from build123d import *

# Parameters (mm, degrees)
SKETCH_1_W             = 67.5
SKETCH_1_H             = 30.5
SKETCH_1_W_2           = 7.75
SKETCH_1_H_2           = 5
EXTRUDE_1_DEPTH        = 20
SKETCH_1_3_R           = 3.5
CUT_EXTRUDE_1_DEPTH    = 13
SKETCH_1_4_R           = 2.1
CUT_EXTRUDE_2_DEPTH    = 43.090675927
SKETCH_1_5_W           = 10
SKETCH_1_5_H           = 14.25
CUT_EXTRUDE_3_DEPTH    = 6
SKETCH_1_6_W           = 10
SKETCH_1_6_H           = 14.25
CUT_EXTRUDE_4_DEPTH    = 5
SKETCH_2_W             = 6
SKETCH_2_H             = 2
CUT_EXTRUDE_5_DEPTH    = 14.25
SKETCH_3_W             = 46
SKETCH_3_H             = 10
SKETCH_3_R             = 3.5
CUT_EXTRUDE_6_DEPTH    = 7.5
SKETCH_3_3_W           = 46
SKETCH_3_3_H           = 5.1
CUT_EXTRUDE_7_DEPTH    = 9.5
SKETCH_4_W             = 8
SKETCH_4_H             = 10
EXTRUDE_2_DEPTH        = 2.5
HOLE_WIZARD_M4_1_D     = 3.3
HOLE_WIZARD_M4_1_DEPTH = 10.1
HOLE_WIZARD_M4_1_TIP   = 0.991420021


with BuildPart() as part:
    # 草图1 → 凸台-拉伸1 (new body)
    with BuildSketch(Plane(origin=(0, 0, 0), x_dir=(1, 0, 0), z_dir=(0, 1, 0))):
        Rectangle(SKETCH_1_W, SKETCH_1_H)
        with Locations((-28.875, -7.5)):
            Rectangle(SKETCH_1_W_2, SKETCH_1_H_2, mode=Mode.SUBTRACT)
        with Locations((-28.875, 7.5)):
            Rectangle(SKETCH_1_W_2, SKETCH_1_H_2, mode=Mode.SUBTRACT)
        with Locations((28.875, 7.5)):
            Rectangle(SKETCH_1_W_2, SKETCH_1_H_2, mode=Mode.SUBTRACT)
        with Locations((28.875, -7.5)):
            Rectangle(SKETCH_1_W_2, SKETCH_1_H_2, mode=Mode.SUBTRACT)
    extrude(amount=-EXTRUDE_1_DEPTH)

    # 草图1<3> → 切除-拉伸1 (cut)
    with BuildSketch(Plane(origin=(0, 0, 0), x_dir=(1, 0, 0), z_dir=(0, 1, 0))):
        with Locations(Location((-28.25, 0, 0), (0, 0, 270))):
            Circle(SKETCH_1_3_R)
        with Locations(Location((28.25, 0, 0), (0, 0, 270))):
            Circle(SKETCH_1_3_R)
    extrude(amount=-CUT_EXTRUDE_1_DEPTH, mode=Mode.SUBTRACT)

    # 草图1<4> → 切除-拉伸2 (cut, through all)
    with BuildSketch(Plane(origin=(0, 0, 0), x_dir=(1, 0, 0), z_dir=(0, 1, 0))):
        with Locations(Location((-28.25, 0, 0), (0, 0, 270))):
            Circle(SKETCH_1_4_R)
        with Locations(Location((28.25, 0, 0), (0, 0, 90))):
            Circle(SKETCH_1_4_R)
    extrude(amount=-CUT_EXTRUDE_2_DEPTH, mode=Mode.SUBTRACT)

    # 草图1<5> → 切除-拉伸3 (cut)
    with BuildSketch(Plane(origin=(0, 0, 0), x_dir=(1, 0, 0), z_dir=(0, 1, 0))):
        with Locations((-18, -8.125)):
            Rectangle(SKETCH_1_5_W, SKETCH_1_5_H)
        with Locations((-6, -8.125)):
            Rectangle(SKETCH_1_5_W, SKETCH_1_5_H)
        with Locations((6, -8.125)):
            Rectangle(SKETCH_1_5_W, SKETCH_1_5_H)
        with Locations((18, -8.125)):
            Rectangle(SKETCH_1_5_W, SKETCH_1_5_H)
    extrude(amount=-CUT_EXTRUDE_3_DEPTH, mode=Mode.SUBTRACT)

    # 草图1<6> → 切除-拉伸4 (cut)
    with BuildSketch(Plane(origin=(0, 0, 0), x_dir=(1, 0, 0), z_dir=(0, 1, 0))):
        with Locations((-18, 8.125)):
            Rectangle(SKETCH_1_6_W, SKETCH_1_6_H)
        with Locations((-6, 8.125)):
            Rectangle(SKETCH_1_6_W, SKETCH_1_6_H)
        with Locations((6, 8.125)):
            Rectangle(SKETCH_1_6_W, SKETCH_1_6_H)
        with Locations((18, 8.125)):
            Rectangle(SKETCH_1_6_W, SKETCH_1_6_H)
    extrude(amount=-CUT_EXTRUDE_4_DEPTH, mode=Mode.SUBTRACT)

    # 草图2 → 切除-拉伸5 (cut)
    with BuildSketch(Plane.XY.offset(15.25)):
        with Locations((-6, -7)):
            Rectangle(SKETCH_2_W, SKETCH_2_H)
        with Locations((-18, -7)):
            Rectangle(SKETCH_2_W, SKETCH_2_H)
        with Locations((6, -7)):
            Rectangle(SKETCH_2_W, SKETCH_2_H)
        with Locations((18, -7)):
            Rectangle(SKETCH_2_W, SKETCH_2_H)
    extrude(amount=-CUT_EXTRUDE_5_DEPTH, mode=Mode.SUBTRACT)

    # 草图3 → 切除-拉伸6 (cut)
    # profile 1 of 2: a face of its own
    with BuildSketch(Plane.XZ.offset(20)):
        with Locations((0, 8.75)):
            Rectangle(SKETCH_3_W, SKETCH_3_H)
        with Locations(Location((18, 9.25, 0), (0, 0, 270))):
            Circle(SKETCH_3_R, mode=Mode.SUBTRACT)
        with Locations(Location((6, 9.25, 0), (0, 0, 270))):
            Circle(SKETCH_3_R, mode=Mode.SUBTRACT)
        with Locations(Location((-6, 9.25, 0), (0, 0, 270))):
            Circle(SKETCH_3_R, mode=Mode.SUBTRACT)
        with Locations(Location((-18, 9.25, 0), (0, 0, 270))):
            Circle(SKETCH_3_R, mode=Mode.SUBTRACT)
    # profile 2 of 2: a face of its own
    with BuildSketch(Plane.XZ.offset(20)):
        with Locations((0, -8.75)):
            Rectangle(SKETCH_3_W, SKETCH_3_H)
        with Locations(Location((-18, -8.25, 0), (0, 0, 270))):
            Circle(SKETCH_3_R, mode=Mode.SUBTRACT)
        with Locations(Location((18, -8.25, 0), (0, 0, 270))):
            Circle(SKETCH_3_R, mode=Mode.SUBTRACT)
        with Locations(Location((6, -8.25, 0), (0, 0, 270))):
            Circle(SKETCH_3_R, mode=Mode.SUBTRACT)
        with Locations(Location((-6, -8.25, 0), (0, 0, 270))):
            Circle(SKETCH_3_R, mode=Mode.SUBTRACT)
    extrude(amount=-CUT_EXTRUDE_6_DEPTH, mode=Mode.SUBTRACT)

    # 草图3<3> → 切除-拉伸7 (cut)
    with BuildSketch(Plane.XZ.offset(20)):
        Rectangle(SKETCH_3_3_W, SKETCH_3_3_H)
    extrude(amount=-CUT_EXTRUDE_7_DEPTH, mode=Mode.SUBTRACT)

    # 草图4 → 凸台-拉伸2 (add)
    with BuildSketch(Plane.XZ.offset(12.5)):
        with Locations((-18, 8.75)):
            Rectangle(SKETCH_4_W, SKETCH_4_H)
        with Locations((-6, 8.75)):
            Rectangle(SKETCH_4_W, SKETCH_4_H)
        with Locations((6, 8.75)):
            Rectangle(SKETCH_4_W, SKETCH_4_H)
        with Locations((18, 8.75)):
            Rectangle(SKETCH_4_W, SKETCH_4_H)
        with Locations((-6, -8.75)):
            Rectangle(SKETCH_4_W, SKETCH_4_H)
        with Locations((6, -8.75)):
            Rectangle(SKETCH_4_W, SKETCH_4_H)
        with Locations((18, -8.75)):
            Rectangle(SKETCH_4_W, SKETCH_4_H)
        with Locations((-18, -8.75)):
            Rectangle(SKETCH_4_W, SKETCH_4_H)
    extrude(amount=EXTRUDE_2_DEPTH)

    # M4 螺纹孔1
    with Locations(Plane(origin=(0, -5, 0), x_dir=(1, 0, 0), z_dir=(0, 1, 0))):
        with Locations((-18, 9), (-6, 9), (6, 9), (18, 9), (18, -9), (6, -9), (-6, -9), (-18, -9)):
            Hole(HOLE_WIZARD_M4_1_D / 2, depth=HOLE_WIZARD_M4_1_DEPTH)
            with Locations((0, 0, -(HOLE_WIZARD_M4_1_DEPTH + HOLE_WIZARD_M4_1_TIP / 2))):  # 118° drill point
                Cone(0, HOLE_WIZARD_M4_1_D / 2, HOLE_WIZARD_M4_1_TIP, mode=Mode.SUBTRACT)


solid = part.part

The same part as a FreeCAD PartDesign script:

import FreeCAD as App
import Part
import Sketcher
from FreeCAD import Vector


def add_polygon(sketch, points):
    """Adds a closed chain of lines whose ends are joined by coincident constraints."""
    first, n = sketch.GeometryCount, len(points)
    for a, b in zip(points, points[1:] + points[:1]):
        sketch.addGeometry(Part.LineSegment(App.Vector(*a, 0), App.Vector(*b, 0)), False)
    for i in range(n):
        sketch.addConstraint(Sketcher.Constraint("Coincident", first + i, 2, first + (i + 1) % n, 1))

doc = App.newDocument("Part")
body = doc.addObject("PartDesign::Body", "Body")

# Sketch on XZ plane
sketch1 = body.newObject("Sketcher::SketchObject", "Sketch")
sketch1.AttachmentSupport = (doc.getObject("XZ_Plane"), [""])
sketch1.MapMode = "FlatFace"
add_polygon(sketch1, [(-34, -15), (-34, 15), (34, 15), (34, -15)])  # lines 0-3
add_polygon(sketch1, [(-25, 10), (-33, 10), (-33, 5), (-25, 5)])  # lines 4-7
add_polygon(sketch1, [(33, 10), (25, 10), (25, 5), (33, 5)])  # lines 8-11
add_polygon(sketch1, [(-25, -5), (-33, -5), (-33, -10), (-25, -10)])  # lines 12-15
add_polygon(sketch1, [(33, -5), (25, -5), (25, -10), (33, -10)])  # lines 16-19
sketch1.addConstraint(Sketcher.Constraint("Vertical", 0))
sketch1.addConstraint(Sketcher.Constraint("Horizontal", 1))
sketch1.addConstraint(Sketcher.Constraint("Vertical", 2))
sketch1.addConstraint(Sketcher.Constraint("Horizontal", 3))
sketch1.addConstraint(Sketcher.Constraint("Horizontal", 4))
sketch1.addConstraint(Sketcher.Constraint("Vertical", 5))
sketch1.addConstraint(Sketcher.Constraint("Horizontal", 6))
sketch1.addConstraint(Sketcher.Constraint("Vertical", 7))
sketch1.addConstraint(Sketcher.Constraint("Horizontal", 8))
sketch1.addConstraint(Sketcher.Constraint("Vertical", 9))
sketch1.addConstraint(Sketcher.Constraint("Horizontal", 10))
sketch1.addConstraint(Sketcher.Constraint("Vertical", 11))
sketch1.addConstraint(Sketcher.Constraint("Horizontal", 12))
sketch1.addConstraint(Sketcher.Constraint("Vertical", 13))
sketch1.addConstraint(Sketcher.Constraint("Horizontal", 14))
sketch1.addConstraint(Sketcher.Constraint("Vertical", 15))
sketch1.addConstraint(Sketcher.Constraint("Horizontal", 16))
sketch1.addConstraint(Sketcher.Constraint("Vertical", 17))
sketch1.addConstraint(Sketcher.Constraint("Horizontal", 18))
sketch1.addConstraint(Sketcher.Constraint("Vertical", 19))
sketch1.addConstraint(Sketcher.Constraint("Symmetric", 0, 2, 2, 2, -1, 1))
sketch1.addConstraint(Sketcher.Constraint("Symmetric", 10, 2, 12, 2, -1, 1))
sketch1.addConstraint(Sketcher.Constraint("Symmetric", 8, 2, 14, 2, -1, 1))
sketch1.addConstraint(Sketcher.Constraint("Symmetric", 6, 2, 16, 2, -1, 1))
sketch1.addConstraint(Sketcher.Constraint("Symmetric", 4, 2, 18, 2, -1, 1))
sketch1.addConstraint(Sketcher.Constraint("Symmetric", 7, 2, 8, 2, -2))
sketch1.addConstraint(Sketcher.Constraint("Symmetric", 5, 2, 10, 2, -2))
sketch1.addConstraint(Sketcher.Constraint("DistanceY", 5, 2, 5, 1, 5.0))
sketch1.addConstraint(Sketcher.Constraint("DistanceX", 1, 1, 1, 2, 67.5))
sketch1.addConstraint(Sketcher.Constraint("DistanceY", 0, 1, 0, 2, 30.5))
sketch1.addConstraint(Sketcher.Constraint("DistanceY", -1, 1, 4, 2, 10.0))
sketch1.addConstraint(Sketcher.Constraint("DistanceX", 6, 2, -1, 1, 25.0))
sketch1.addConstraint(Sketcher.Constraint("DistanceX", 0, 2, 4, 2, 1.0))
pad1 = body.newObject("PartDesign::Pad", "Pad")
pad1.Profile = sketch1
pad1.Length = 20

# Sketch on XZ plane
sketch2 = body.newObject("Sketcher::SketchObject", "Sketch001")
sketch2.AttachmentSupport = (doc.getObject("XZ_Plane"), [""])
sketch2.MapMode = "FlatFace"
sketch2.addGeometry(Part.Circle(Vector(-28.2, 0, 0), Vector(0, 0, 1), 3.5), False)
sketch2.addGeometry(Part.Circle(Vector(28.2, 0, 0), Vector(0, 0, 1), 3.5), False)
sketch2.addConstraint(Sketcher.Constraint("Equal", 0, 1))
sketch2.addConstraint(Sketcher.Constraint("Symmetric", 0, 3, 1, 3, -1, 1))
sketch2.addConstraint(Sketcher.Constraint("PointOnObject", 0, 3, -1))
sketch2.addConstraint(Sketcher.Constraint("Diameter", 0, 7.0))
sketch2.addConstraint(Sketcher.Constraint("DistanceX", 0, 3, 1, 3, 56.5))
pocket1 = body.newObject("PartDesign::Pocket", "Pocket")
pocket1.Profile = sketch2
pocket1.Length = 13
pocket1.Reversed = True

# Sketch on XZ plane
sketch3 = body.newObject("Sketcher::SketchObject", "Sketch002")
sketch3.AttachmentSupport = (doc.getObject("XZ_Plane"), [""])
sketch3.MapMode = "FlatFace"
sketch3.addGeometry(Part.Circle(Vector(-28.2, 0, 0), Vector(0, 0, 1), 2.1), False)
sketch3.addGeometry(Part.Circle(Vector(28.2, 0, 0), Vector(0, 0, 1), 2.1), False)
sketch3.addConstraint(Sketcher.Constraint("Equal", 0, 1))
sketch3.addConstraint(Sketcher.Constraint("Symmetric", 0, 3, 1, 3, -1, 1))
sketch3.addConstraint(Sketcher.Constraint("PointOnObject", 0, 3, -1))
sketch3.addConstraint(Sketcher.Constraint("Diameter", 0, 4.2))
sketch3.addConstraint(Sketcher.Constraint("DistanceX", 0, 3, 1, 3, 56.5))
pocket2 = body.newObject("PartDesign::Pocket", "Pocket001")
pocket2.Profile = sketch3
pocket2.Type = "ThroughAll"
pocket2.Reversed = True

# Sketch on XZ plane
sketch4 = body.newObject("Sketcher::SketchObject", "Sketch003")
sketch4.AttachmentSupport = (doc.getObject("XZ_Plane"), [""])
sketch4.MapMode = "FlatFace"
add_polygon(sketch4, [(-23, 1), (-23, 15), (-13, 15), (-13, 1)])  # lines 0-3
add_polygon(sketch4, [(-11, 1), (-11, 15), (-1, 15), (-1, 1)])  # lines 4-7
add_polygon(sketch4, [(1, 1), (1, 15), (11, 15), (11, 1)])  # lines 8-11
add_polygon(sketch4, [(13, 1), (13, 15), (23, 15), (23, 1)])  # lines 12-15
sketch4.addConstraint(Sketcher.Constraint("Vertical", 0))
sketch4.addConstraint(Sketcher.Constraint("Horizontal", 1))
sketch4.addConstraint(Sketcher.Constraint("Vertical", 2))
sketch4.addConstraint(Sketcher.Constraint("Horizontal", 3))
sketch4.addConstraint(Sketcher.Constraint("Vertical", 4))
sketch4.addConstraint(Sketcher.Constraint("Horizontal", 5))
sketch4.addConstraint(Sketcher.Constraint("Vertical", 6))
sketch4.addConstraint(Sketcher.Constraint("Horizontal", 7))
sketch4.addConstraint(Sketcher.Constraint("Vertical", 8))
sketch4.addConstraint(Sketcher.Constraint("Horizontal", 9))
sketch4.addConstraint(Sketcher.Constraint("Vertical", 10))
sketch4.addConstraint(Sketcher.Constraint("Horizontal", 11))
sketch4.addConstraint(Sketcher.Constraint("Vertical", 12))
sketch4.addConstraint(Sketcher.Constraint("Horizontal", 13))
sketch4.addConstraint(Sketcher.Constraint("Vertical", 14))
sketch4.addConstraint(Sketcher.Constraint("Horizontal", 15))
sketch4.addConstraint(Sketcher.Constraint("Symmetric", 5, 2, 8, 2, -2))
sketch4.addConstraint(Sketcher.Constraint("Symmetric", 7, 2, 10, 2, -2))
sketch4.addConstraint(Sketcher.Constraint("Symmetric", 1, 2, 12, 2, -2))
sketch4.addConstraint(Sketcher.Constraint("Symmetric", 3, 2, 14, 2, -2))
sketch4.addConstraint(Sketcher.Constraint("Horizontal", 1, 2, 4, 2))
sketch4.addConstraint(Sketcher.Constraint("Horizontal", 3, 2, 6, 2))
sketch4.addConstraint(Sketcher.Constraint("Equal", 3, 5))
sketch4.addConstraint(Sketcher.Constraint("DistanceX", 1, 1, 1, 2, 10.0))
sketch4.addConstraint(Sketcher.Constraint("DistanceX", 0, 2, -1, 1, 23.0))
sketch4.addConstraint(Sketcher.Constraint("DistanceY", -1, 1, 2, 2, 1.0))
sketch4.addConstraint(Sketcher.Constraint("DistanceX", 4, 2, -1, 1, 11.0))
sketch4.addConstraint(Sketcher.Constraint("DistanceY", 0, 1, 0, 2, 14.25))
pocket3 = body.newObject("PartDesign::Pocket", "Pocket002")
pocket3.Profile = sketch4
pocket3.Length = 6
pocket3.Reversed = True

# Sketch on XZ plane
sketch5 = body.newObject("Sketcher::SketchObject", "Sketch004")
sketch5.AttachmentSupport = (doc.getObject("XZ_Plane"), [""])
sketch5.MapMode = "FlatFace"
add_polygon(sketch5, [(-23, -15), (-23, -1), (-13, -1), (-13, -15)])  # lines 0-3
add_polygon(sketch5, [(-11, -15), (-11, -1), (-1, -1), (-1, -15)])  # lines 4-7
add_polygon(sketch5, [(1, -15), (1, -1), (11, -1), (11, -15)])  # lines 8-11
add_polygon(sketch5, [(13, -15), (13, -1), (23, -1), (23, -15)])  # lines 12-15
sketch5.addConstraint(Sketcher.Constraint("Vertical", 0))
sketch5.addConstraint(Sketcher.Constraint("Horizontal", 1))
sketch5.addConstraint(Sketcher.Constraint("Vertical", 2))
sketch5.addConstraint(Sketcher.Constraint("Horizontal", 3))
sketch5.addConstraint(Sketcher.Constraint("Vertical", 4))
sketch5.addConstraint(Sketcher.Constraint("Horizontal", 5))
sketch5.addConstraint(Sketcher.Constraint("Vertical", 6))
sketch5.addConstraint(Sketcher.Constraint("Horizontal", 7))
sketch5.addConstraint(Sketcher.Constraint("Vertical", 8))
sketch5.addConstraint(Sketcher.Constraint("Horizontal", 9))
sketch5.addConstraint(Sketcher.Constraint("Vertical", 10))
sketch5.addConstraint(Sketcher.Constraint("Horizontal", 11))
sketch5.addConstraint(Sketcher.Constraint("Vertical", 12))
sketch5.addConstraint(Sketcher.Constraint("Horizontal", 13))
sketch5.addConstraint(Sketcher.Constraint("Vertical", 14))
sketch5.addConstraint(Sketcher.Constraint("Horizontal", 15))
sketch5.addConstraint(Sketcher.Constraint("Symmetric", 5, 2, 8, 2, -2))
sketch5.addConstraint(Sketcher.Constraint("Symmetric", 7, 2, 10, 2, -2))
sketch5.addConstraint(Sketcher.Constraint("Symmetric", 1, 2, 12, 2, -2))
sketch5.addConstraint(Sketcher.Constraint("Symmetric", 3, 2, 14, 2, -2))
sketch5.addConstraint(Sketcher.Constraint("Horizontal", 1, 2, 4, 2))
sketch5.addConstraint(Sketcher.Constraint("Horizontal", 3, 2, 6, 2))
sketch5.addConstraint(Sketcher.Constraint("Equal", 3, 5))
sketch5.addConstraint(Sketcher.Constraint("DistanceX", 1, 1, 1, 2, 10.0))
sketch5.addConstraint(Sketcher.Constraint("DistanceX", 0, 2, -1, 1, 23.0))
sketch5.addConstraint(Sketcher.Constraint("DistanceY", 0, 2, -1, 1, 1.0))
sketch5.addConstraint(Sketcher.Constraint("DistanceX", 4, 2, -1, 1, 11.0))
sketch5.addConstraint(Sketcher.Constraint("DistanceY", 0, 1, 0, 2, 14.25))
pocket4 = body.newObject("PartDesign::Pocket", "Pocket003")
pocket4.Profile = sketch5
pocket4.Length = 5
pocket4.Reversed = True

# Sketch on XY plane
sketch6 = body.newObject("Sketcher::SketchObject", "Sketch005")
sketch6.AttachmentSupport = (doc.getObject("XY_Plane"), [""])
sketch6.MapMode = "FlatFace"
sketch6.AttachmentOffset = App.Placement(Vector(0, 0, 15.25), App.Rotation())
add_polygon(sketch6, [(-9, -6), (-9, -8), (-3, -8), (-3, -6)])  # lines 0-3
add_polygon(sketch6, [(-21, -6), (-21, -8), (-15, -8), (-15, -6)])  # lines 4-7
add_polygon(sketch6, [(3, -6), (3, -8), (9, -8), (9, -6)])  # lines 8-11
add_polygon(sketch6, [(15, -6), (15, -8), (21, -8), (21, -6)])  # lines 12-15
sketch6.addConstraint(Sketcher.Constraint("Vertical", 0))
sketch6.addConstraint(Sketcher.Constraint("Horizontal", 1))
sketch6.addConstraint(Sketcher.Constraint("Vertical", 2))
sketch6.addConstraint(Sketcher.Constraint("Horizontal", 3))
sketch6.addConstraint(Sketcher.Constraint("Vertical", 4))
sketch6.addConstraint(Sketcher.Constraint("Horizontal", 5))
sketch6.addConstraint(Sketcher.Constraint("Vertical", 6))
sketch6.addConstraint(Sketcher.Constraint("Horizontal", 7))
sketch6.addConstraint(Sketcher.Constraint("Vertical", 8))
sketch6.addConstraint(Sketcher.Constraint("Horizontal", 9))
sketch6.addConstraint(Sketcher.Constraint("Vertical", 10))
sketch6.addConstraint(Sketcher.Constraint("Horizontal", 11))
sketch6.addConstraint(Sketcher.Constraint("Vertical", 12))
sketch6.addConstraint(Sketcher.Constraint("Horizontal", 13))
sketch6.addConstraint(Sketcher.Constraint("Vertical", 14))
sketch6.addConstraint(Sketcher.Constraint("Horizontal", 15))
sketch6.addConstraint(Sketcher.Constraint("Symmetric", 1, 2, 8, 2, -2))
sketch6.addConstraint(Sketcher.Constraint("Symmetric", 3, 2, 10, 2, -2))
sketch6.addConstraint(Sketcher.Constraint("Symmetric", 5, 2, 12, 2, -2))
sketch6.addConstraint(Sketcher.Constraint("Symmetric", 7, 2, 14, 2, -2))
sketch6.addConstraint(Sketcher.Constraint("Horizontal", 1, 2, 4, 2))
sketch6.addConstraint(Sketcher.Constraint("Horizontal", 3, 2, 6, 2))
sketch6.addConstraint(Sketcher.Constraint("Equal", 3, 5))
sketch6.addConstraint(Sketcher.Constraint("DistanceX", 1, 1, 1, 2, 6.0))
sketch6.addConstraint(Sketcher.Constraint("DistanceY", 0, 2, 0, 1, 2.0))
sketch6.addConstraint(Sketcher.Constraint("DistanceX", 0, 2, -1, 1, 9.0))
sketch6.addConstraint(Sketcher.Constraint("DistanceY", 0, 2, -1, 1, 8.0))
sketch6.addConstraint(Sketcher.Constraint("DistanceX", 4, 2, -1, 1, 21.0))
pocket5 = body.newObject("PartDesign::Pocket", "Pocket004")
pocket5.Profile = sketch6
pocket5.Length = 14.25

# Sketch on XZ plane
sketch7 = body.newObject("Sketcher::SketchObject", "Sketch006")
sketch7.AttachmentSupport = (doc.getObject("XZ_Plane"), [""])
sketch7.MapMode = "FlatFace"
sketch7.AttachmentOffset = App.Placement(Vector(0, 0, 20), App.Rotation())
add_polygon(sketch7, [(-23, 13.8), (-23, 3.8), (23, 3.8), (23, 13.8)])  # lines 0-3
sketch7.addGeometry(Part.Circle(Vector(-18, 9.2, 0), Vector(0, 0, 1), 3.5), False)  # 4
sketch7.addGeometry(Part.Circle(Vector(-6, 9.2, 0), Vector(0, 0, 1), 3.5), False)  # 5
sketch7.addGeometry(Part.Circle(Vector(6, 9.2, 0), Vector(0, 0, 1), 3.5), False)  # 6
sketch7.addGeometry(Part.Circle(Vector(18, 9.2, 0), Vector(0, 0, 1), 3.5), False)  # 7
add_polygon(sketch7, [(-23, -3.8), (-23, -13.8), (23, -13.8), (23, -3.8)])  # lines 8-11
sketch7.addGeometry(Part.Circle(Vector(-18, -8.2, 0), Vector(0, 0, 1), 3.5), False)  # 12
sketch7.addGeometry(Part.Circle(Vector(-6, -8.2, 0), Vector(0, 0, 1), 3.5), False)  # 13
sketch7.addGeometry(Part.Circle(Vector(6, -8.2, 0), Vector(0, 0, 1), 3.5), False)  # 14
sketch7.addGeometry(Part.Circle(Vector(18, -8.2, 0), Vector(0, 0, 1), 3.5), False)  # 15
sketch7.addConstraint(Sketcher.Constraint("Vertical", 0))
sketch7.addConstraint(Sketcher.Constraint("Horizontal", 1))
sketch7.addConstraint(Sketcher.Constraint("Vertical", 2))
sketch7.addConstraint(Sketcher.Constraint("Horizontal", 3))
sketch7.addConstraint(Sketcher.Constraint("Vertical", 8))
sketch7.addConstraint(Sketcher.Constraint("Horizontal", 9))
sketch7.addConstraint(Sketcher.Constraint("Vertical", 10))
sketch7.addConstraint(Sketcher.Constraint("Horizontal", 11))
sketch7.addConstraint(Sketcher.Constraint("Equal", 4, 5))
sketch7.addConstraint(Sketcher.Constraint("Equal", 5, 6))
sketch7.addConstraint(Sketcher.Constraint("Equal", 6, 7))
sketch7.addConstraint(Sketcher.Constraint("Equal", 7, 12))
sketch7.addConstraint(Sketcher.Constraint("Equal", 12, 13))
sketch7.addConstraint(Sketcher.Constraint("Equal", 13, 14))
sketch7.addConstraint(Sketcher.Constraint("Equal", 14, 15))
sketch7.addConstraint(Sketcher.Constraint("Symmetric", 2, 2, 8, 2, -1, 1))
sketch7.addConstraint(Sketcher.Constraint("Symmetric", 0, 2, 10, 2, -1, 1))
sketch7.addConstraint(Sketcher.Constraint("Symmetric", 5, 3, 6, 3, -2))
sketch7.addConstraint(Sketcher.Constraint("Symmetric", 4, 3, 7, 3, -2))
sketch7.addConstraint(Sketcher.Constraint("Symmetric", 13, 3, 14, 3, -2))
sketch7.addConstraint(Sketcher.Constraint("Symmetric", 12, 3, 15, 3, -2))
sketch7.addConstraint(Sketcher.Constraint("Horizontal", 4, 3, 5, 3))
sketch7.addConstraint(Sketcher.Constraint("Horizontal", 12, 3, 13, 3))
sketch7.addConstraint(Sketcher.Constraint("Vertical", 4, 3, 12, 3))
sketch7.addConstraint(Sketcher.Constraint("Vertical", 5, 3, 13, 3))
sketch7.addConstraint(Sketcher.Constraint("Vertical", 3, 2, 8, 2))
sketch7.addConstraint(Sketcher.Constraint("Diameter", 4, 7.0))
sketch7.addConstraint(Sketcher.Constraint("DistanceX", 1, 1, 1, 2, 46.0))
sketch7.addConstraint(Sketcher.Constraint("DistanceY", 0, 2, 0, 1, 10.0))
sketch7.addConstraint(Sketcher.Constraint("DistanceX", 4, 3, -1, 1, 18.0))
sketch7.addConstraint(Sketcher.Constraint("DistanceX", 5, 3, -1, 1, 6.0))
sketch7.addConstraint(Sketcher.Constraint("DistanceY", 12, 3, 0, 2, 12.0))
sketch7.addConstraint(Sketcher.Constraint("DistanceY", 8, 2, 4, 3, 23.0))
sketch7.addConstraint(Sketcher.Constraint("DistanceY", 12, 3, 4, 3, 17.5))
pocket6 = body.newObject("PartDesign::Pocket", "Pocket005")
pocket6.Profile = sketch7
pocket6.Length = 7.5

# Sketch on XZ plane
sketch8 = body.newObject("Sketcher::SketchObject", "Sketch007")
sketch8.AttachmentSupport = (doc.getObject("XZ_Plane"), [""])
sketch8.MapMode = "FlatFace"
sketch8.AttachmentOffset = App.Placement(Vector(0, 0, 20), App.Rotation())
add_polygon(sketch8, [(-23, 3), (-23, -3), (23, -3), (23, 3)])  # lines 0-3
sketch8.addConstraint(Sketcher.Constraint("Vertical", 0))
sketch8.addConstraint(Sketcher.Constraint("Horizontal", 1))
sketch8.addConstraint(Sketcher.Constraint("Vertical", 2))
sketch8.addConstraint(Sketcher.Constraint("Horizontal", 3))
sketch8.addConstraint(Sketcher.Constraint("Symmetric", 0, 2, 2, 2, -1, 1))
sketch8.addConstraint(Sketcher.Constraint("DistanceX", 1, 1, 1, 2, 46.0))
sketch8.addConstraint(Sketcher.Constraint("DistanceY", 0, 2, 0, 1, 5.1))
pocket7 = body.newObject("PartDesign::Pocket", "Pocket006")
pocket7.Profile = sketch8
pocket7.Length = 9.5

# Sketch on XZ plane
sketch9 = body.newObject("Sketcher::SketchObject", "Sketch008")
sketch9.AttachmentSupport = (doc.getObject("XZ_Plane"), [""])
sketch9.MapMode = "FlatFace"
sketch9.AttachmentOffset = App.Placement(Vector(0, 0, 12.5), App.Rotation())
add_polygon(sketch9, [(-22, 14), (-22, 4), (-14, 4), (-14, 14)])  # lines 0-3
add_polygon(sketch9, [(-10, 14), (-10, 4), (-2, 4), (-2, 14)])  # lines 4-7
add_polygon(sketch9, [(2, 14), (2, 4), (10, 4), (10, 14)])  # lines 8-11
add_polygon(sketch9, [(14, 14), (14, 4), (22, 4), (22, 14)])  # lines 12-15
add_polygon(sketch9, [(-10, -4), (-10, -14), (-2, -14), (-2, -4)])  # lines 16-19
add_polygon(sketch9, [(2, -4), (2, -14), (10, -14), (10, -4)])  # lines 20-23
add_polygon(sketch9, [(14, -4), (14, -14), (22, -14), (22, -4)])  # lines 24-27
add_polygon(sketch9, [(-22, -4), (-22, -14), (-14, -14), (-14, -4)])  # lines 28-31
sketch9.addConstraint(Sketcher.Constraint("Vertical", 0))
sketch9.addConstraint(Sketcher.Constraint("Horizontal", 1))
sketch9.addConstraint(Sketcher.Constraint("Vertical", 2))
sketch9.addConstraint(Sketcher.Constraint("Horizontal", 3))
sketch9.addConstraint(Sketcher.Constraint("Vertical", 4))
sketch9.addConstraint(Sketcher.Constraint("Horizontal", 5))
sketch9.addConstraint(Sketcher.Constraint("Vertical", 6))
sketch9.addConstraint(Sketcher.Constraint("Horizontal", 7))
sketch9.addConstraint(Sketcher.Constraint("Vertical", 8))
sketch9.addConstraint(Sketcher.Constraint("Horizontal", 9))
sketch9.addConstraint(Sketcher.Constraint("Vertical", 10))
sketch9.addConstraint(Sketcher.Constraint("Horizontal", 11))
sketch9.addConstraint(Sketcher.Constraint("Vertical", 12))
sketch9.addConstraint(Sketcher.Constraint("Horizontal", 13))
sketch9.addConstraint(Sketcher.Constraint("Vertical", 14))
sketch9.addConstraint(Sketcher.Constraint("Horizontal", 15))
sketch9.addConstraint(Sketcher.Constraint("Vertical", 16))
sketch9.addConstraint(Sketcher.Constraint("Horizontal", 17))
sketch9.addConstraint(Sketcher.Constraint("Vertical", 18))
sketch9.addConstraint(Sketcher.Constraint("Horizontal", 19))
sketch9.addConstraint(Sketcher.Constraint("Vertical", 20))
sketch9.addConstraint(Sketcher.Constraint("Horizontal", 21))
sketch9.addConstraint(Sketcher.Constraint("Vertical", 22))
sketch9.addConstraint(Sketcher.Constraint("Horizontal", 23))
sketch9.addConstraint(Sketcher.Constraint("Vertical", 24))
sketch9.addConstraint(Sketcher.Constraint("Horizontal", 25))
sketch9.addConstraint(Sketcher.Constraint("Vertical", 26))
sketch9.addConstraint(Sketcher.Constraint("Horizontal", 27))
sketch9.addConstraint(Sketcher.Constraint("Vertical", 28))
sketch9.addConstraint(Sketcher.Constraint("Horizontal", 29))
sketch9.addConstraint(Sketcher.Constraint("Vertical", 30))
sketch9.addConstraint(Sketcher.Constraint("Horizontal", 31))
sketch9.addConstraint(Sketcher.Constraint("Symmetric", 10, 2, 16, 2, -1, 1))
sketch9.addConstraint(Sketcher.Constraint("Symmetric", 8, 2, 18, 2, -1, 1))
sketch9.addConstraint(Sketcher.Constraint("Symmetric", 6, 2, 20, 2, -1, 1))
sketch9.addConstraint(Sketcher.Constraint("Symmetric", 4, 2, 22, 2, -1, 1))
sketch9.addConstraint(Sketcher.Constraint("Symmetric", 2, 2, 24, 2, -1, 1))
sketch9.addConstraint(Sketcher.Constraint("Symmetric", 0, 2, 26, 2, -1, 1))
sketch9.addConstraint(Sketcher.Constraint("Symmetric", 14, 2, 28, 2, -1, 1))
sketch9.addConstraint(Sketcher.Constraint("Symmetric", 12, 2, 30, 2, -1, 1))
sketch9.addConstraint(Sketcher.Constraint("Symmetric", 5, 2, 8, 2, -2))
sketch9.addConstraint(Sketcher.Constraint("Symmetric", 7, 2, 10, 2, -2))
sketch9.addConstraint(Sketcher.Constraint("Symmetric", 1, 2, 12, 2, -2))
sketch9.addConstraint(Sketcher.Constraint("Symmetric", 3, 2, 14, 2, -2))
sketch9.addConstraint(Sketcher.Constraint("Horizontal", 1, 2, 4, 2))
sketch9.addConstraint(Sketcher.Constraint("Horizontal", 3, 2, 6, 2))
sketch9.addConstraint(Sketcher.Constraint("Equal", 3, 5))
sketch9.addConstraint(Sketcher.Constraint("DistanceX", 1, 1, 1, 2, 8.0))
sketch9.addConstraint(Sketcher.Constraint("DistanceY", 0, 2, 0, 1, 10.0))
sketch9.addConstraint(Sketcher.Constraint("DistanceX", 0, 2, -1, 1, 22.0))
sketch9.addConstraint(Sketcher.Constraint("DistanceX", 4, 2, -1, 1, 10.0))
sketch9.addConstraint(Sketcher.Constraint("DistanceY", 16, 2, 4, 2, 17.5))
pad2 = body.newObject("PartDesign::Pad", "Pad001")
pad2.Profile = sketch9
pad2.Length = 2.5

# Sketch on XZ plane
sketch10 = body.newObject("Sketcher::SketchObject", "Sketch009")
sketch10.AttachmentSupport = (doc.getObject("XZ_Plane"), [""])
sketch10.MapMode = "FlatFace"
sketch10.AttachmentOffset = App.Placement(Vector(0, 0, 5), App.Rotation())
sketch10.addGeometry(Part.Circle(Vector(-18, -9, 0), Vector(0, 0, 1), 1.6), False)
sketch10.addGeometry(Part.Circle(Vector(-6, -9, 0), Vector(0, 0, 1), 1.6), False)
sketch10.addGeometry(Part.Circle(Vector(6, -9, 0), Vector(0, 0, 1), 1.6), False)
sketch10.addGeometry(Part.Circle(Vector(18, -9, 0), Vector(0, 0, 1), 1.6), False)
sketch10.addGeometry(Part.Circle(Vector(18, 9, 0), Vector(0, 0, 1), 1.6), False)
sketch10.addGeometry(Part.Circle(Vector(6, 9, 0), Vector(0, 0, 1), 1.6), False)
sketch10.addGeometry(Part.Circle(Vector(-6, 9, 0), Vector(0, 0, 1), 1.6), False)
sketch10.addGeometry(Part.Circle(Vector(-18, 9, 0), Vector(0, 0, 1), 1.6), False)
sketch10.addConstraint(Sketcher.Constraint("Equal", 0, 1))
sketch10.addConstraint(Sketcher.Constraint("Equal", 1, 2))
sketch10.addConstraint(Sketcher.Constraint("Equal", 2, 3))
sketch10.addConstraint(Sketcher.Constraint("Equal", 3, 4))
sketch10.addConstraint(Sketcher.Constraint("Equal", 4, 5))
sketch10.addConstraint(Sketcher.Constraint("Equal", 5, 6))
sketch10.addConstraint(Sketcher.Constraint("Equal", 6, 7))
sketch10.addConstraint(Sketcher.Constraint("Symmetric", 0, 3, 4, 3, -1, 1))
sketch10.addConstraint(Sketcher.Constraint("Symmetric", 1, 3, 5, 3, -1, 1))
sketch10.addConstraint(Sketcher.Constraint("Symmetric", 2, 3, 6, 3, -1, 1))
sketch10.addConstraint(Sketcher.Constraint("Symmetric", 3, 3, 7, 3, -1, 1))
sketch10.addConstraint(Sketcher.Constraint("Symmetric", 1, 3, 2, 3, -2))
sketch10.addConstraint(Sketcher.Constraint("Symmetric", 0, 3, 3, 3, -2))
sketch10.addConstraint(Sketcher.Constraint("Horizontal", 0, 3, 1, 3))
sketch10.addConstraint(Sketcher.Constraint("Diameter", 0, 3.3))
sketch10.addConstraint(Sketcher.Constraint("DistanceX", 0, 3, -1, 1, 18.0))
sketch10.addConstraint(Sketcher.Constraint("DistanceY", 0, 3, -1, 1, 9.0))
sketch10.addConstraint(Sketcher.Constraint("DistanceX", 1, 3, -1, 1, 6.0))
doc.recompute()
hole = body.newObject("PartDesign::Hole", "Hole")
hole.Profile = sketch10
hole.ThreadType = "None"
hole.Diameter = 3.3
hole.DepthType = "Dimension"
hole.Depth = 10.1
hole.DrillPoint = "Angled"
hole.DrillPointAngle = 118
hole.Reversed = True

doc.recompute()
